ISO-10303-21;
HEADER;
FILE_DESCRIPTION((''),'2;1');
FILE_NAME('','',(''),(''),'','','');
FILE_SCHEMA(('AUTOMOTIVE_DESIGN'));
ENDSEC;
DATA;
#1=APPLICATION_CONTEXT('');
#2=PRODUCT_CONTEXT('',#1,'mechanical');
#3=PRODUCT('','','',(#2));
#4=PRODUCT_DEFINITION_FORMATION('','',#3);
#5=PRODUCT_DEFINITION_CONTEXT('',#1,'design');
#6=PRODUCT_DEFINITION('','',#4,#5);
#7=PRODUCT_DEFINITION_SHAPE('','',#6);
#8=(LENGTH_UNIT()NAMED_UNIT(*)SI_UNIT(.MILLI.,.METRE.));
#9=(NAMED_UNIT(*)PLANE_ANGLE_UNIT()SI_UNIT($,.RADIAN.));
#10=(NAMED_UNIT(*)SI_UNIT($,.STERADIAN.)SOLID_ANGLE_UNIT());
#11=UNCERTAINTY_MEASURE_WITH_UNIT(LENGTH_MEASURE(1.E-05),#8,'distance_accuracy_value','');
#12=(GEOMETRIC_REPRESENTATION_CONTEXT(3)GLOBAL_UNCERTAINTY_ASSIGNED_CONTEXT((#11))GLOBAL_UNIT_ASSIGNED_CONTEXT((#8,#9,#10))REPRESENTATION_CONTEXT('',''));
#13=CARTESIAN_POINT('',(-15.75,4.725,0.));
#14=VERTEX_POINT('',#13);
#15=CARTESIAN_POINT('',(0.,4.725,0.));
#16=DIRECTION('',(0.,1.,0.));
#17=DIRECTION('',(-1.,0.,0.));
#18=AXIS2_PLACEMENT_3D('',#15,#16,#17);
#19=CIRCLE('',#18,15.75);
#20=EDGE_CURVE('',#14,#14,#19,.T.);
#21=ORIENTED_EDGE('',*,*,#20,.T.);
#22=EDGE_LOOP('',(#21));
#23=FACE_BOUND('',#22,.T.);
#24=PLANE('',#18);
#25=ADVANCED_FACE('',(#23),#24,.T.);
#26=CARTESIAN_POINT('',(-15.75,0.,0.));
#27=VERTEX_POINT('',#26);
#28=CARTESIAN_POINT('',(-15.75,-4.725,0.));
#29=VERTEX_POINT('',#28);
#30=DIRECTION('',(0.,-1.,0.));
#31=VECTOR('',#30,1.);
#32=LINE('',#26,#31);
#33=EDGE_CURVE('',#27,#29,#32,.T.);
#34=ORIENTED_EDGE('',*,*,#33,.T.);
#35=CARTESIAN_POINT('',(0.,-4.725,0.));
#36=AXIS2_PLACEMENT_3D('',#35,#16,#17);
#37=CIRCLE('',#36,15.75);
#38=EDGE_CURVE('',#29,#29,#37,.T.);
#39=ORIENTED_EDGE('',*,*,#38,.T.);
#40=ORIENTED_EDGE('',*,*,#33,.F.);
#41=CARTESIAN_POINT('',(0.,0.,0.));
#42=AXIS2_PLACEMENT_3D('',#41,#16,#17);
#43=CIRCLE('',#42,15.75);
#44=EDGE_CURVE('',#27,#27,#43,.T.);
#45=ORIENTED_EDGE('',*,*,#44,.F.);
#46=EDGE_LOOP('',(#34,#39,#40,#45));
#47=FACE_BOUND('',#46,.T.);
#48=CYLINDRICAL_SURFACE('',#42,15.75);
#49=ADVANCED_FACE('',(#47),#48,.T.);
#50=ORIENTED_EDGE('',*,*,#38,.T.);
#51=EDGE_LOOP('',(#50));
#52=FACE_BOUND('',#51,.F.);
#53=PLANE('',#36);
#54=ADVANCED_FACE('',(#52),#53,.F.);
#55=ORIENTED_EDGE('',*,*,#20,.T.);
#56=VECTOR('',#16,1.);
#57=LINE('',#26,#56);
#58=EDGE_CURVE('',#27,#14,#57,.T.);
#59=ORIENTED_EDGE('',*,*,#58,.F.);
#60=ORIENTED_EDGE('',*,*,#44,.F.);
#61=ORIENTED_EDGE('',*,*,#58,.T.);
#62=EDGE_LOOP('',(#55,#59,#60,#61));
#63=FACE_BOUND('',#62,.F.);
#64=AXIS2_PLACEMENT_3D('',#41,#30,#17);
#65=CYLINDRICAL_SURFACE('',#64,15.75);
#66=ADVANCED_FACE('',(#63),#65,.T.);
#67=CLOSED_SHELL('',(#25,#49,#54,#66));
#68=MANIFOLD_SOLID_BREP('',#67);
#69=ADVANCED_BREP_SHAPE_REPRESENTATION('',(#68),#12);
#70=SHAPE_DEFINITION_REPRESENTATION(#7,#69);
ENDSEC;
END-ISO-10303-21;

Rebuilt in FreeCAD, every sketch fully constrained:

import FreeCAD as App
import Part
import Sketcher

V = App.Vector

doc = App.newDocument("Part")
body = doc.addObject("PartDesign::Body", "Body")

# Sketch on XZ plane
sketch1 = doc.addObject("Sketcher::SketchObject", "Sketch")
body.addObject(sketch1)
sketch1.AttachmentSupport = (doc.XZ_Plane, [""])
sketch1.MapMode = "FlatFace"
sketch1.addGeometry(Part.Circle(V(0, 0, 0), V(0, 0, 1), 16), False)
sketch1.addConstraint(Sketcher.Constraint("Coincident", 0, 3, -1, 1))
sketch1.addConstraint(Sketcher.Constraint("Diameter", 0, 31.5))
pad1 = doc.addObject("PartDesign::Pad", "Pad")
body.addObject(pad1)
pad1.Profile = sketch1
pad1.Length = 9.45
pad1.Midplane = True

doc.recompute()
